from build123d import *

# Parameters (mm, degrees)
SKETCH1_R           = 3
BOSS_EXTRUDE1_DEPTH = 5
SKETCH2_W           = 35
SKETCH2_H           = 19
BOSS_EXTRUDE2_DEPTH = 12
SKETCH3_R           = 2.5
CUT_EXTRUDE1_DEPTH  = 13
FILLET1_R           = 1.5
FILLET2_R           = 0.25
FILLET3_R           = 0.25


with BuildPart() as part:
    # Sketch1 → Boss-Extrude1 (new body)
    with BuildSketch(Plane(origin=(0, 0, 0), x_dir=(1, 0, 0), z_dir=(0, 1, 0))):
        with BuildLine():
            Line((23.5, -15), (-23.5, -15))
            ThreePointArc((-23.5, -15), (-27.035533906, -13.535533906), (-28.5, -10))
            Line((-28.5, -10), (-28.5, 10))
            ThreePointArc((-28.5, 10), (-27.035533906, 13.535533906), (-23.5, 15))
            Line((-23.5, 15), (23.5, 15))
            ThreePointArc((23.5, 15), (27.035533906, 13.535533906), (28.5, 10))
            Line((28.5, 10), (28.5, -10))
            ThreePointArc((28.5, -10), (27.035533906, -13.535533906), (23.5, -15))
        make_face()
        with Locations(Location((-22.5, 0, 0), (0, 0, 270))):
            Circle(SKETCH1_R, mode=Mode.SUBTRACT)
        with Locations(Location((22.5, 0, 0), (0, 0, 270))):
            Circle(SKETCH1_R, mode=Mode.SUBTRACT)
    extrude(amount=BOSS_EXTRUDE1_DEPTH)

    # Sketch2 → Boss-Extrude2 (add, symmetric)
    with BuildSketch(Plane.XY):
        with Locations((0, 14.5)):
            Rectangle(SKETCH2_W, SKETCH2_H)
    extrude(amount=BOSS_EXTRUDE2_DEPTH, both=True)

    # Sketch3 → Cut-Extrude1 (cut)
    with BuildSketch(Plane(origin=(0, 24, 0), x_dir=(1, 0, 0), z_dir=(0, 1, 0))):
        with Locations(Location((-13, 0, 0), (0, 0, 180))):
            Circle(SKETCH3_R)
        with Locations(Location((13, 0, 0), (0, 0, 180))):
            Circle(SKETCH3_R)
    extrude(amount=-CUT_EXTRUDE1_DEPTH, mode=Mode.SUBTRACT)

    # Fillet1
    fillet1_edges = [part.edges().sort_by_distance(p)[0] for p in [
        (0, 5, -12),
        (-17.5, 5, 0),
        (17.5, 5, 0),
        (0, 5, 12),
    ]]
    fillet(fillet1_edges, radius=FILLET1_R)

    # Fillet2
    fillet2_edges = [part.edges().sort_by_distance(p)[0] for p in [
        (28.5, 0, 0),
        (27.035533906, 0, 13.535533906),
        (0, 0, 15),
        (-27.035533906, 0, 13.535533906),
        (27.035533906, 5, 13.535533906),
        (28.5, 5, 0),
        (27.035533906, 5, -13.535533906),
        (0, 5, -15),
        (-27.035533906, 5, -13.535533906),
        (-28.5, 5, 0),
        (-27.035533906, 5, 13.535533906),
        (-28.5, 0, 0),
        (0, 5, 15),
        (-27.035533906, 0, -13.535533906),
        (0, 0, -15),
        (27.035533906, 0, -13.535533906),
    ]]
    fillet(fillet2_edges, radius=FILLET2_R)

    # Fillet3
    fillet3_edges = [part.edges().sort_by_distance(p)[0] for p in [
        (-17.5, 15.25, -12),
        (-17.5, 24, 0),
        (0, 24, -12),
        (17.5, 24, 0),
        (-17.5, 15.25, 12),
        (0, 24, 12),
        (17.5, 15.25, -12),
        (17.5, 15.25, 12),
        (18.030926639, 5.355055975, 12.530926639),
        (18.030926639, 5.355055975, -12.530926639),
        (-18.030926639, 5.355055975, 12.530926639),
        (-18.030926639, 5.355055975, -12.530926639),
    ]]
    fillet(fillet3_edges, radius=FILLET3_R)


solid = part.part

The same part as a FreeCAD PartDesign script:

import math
import FreeCAD as App
import Part
import Sketcher
from FreeCAD import Vector


def edges_at(feature, points):
    """Names of the edges that pass closest to the given points."""
    edges = feature.Shape.Edges
    near = lambda p: min(range(len(edges)), key=lambda i: edges[i].distToShape(Part.Vertex(*p))[0])
    return sorted({f"Edge{near(p) + 1}" for p in points})

doc = App.newDocument("Part")
params = doc.addObject("Spreadsheet::Sheet", "Params")
for row, (alias, value) in enumerate([
    ("sketch1_diameter", "6 mm"),
    ("sketch1_radius", "5 mm"),
    ("sketch1_width", "47 mm"),
    ("sketch1_height", "20 mm"),
    ("pad1_length", "5 mm"),
    ("sketch2_width", "35 mm"),
    ("sketch2_height", "19 mm"),
    ("pad2_length", "24 mm"),
    ("sketch3_diameter", "5 mm"),
    ("pocket1_length", "13 mm"),
    ("fillet_radius", "1.5 mm"),
    ("fillet2_radius", "0.25 mm"),
    ("fillet3_radius", "0.25 mm"),
], start=1):
    params.set(f"A{row}", alias)
    params.set(f"B{row}", "=" + value)
    params.setAlias(f"B{row}", alias)

body = doc.addObject("PartDesign::Body", "Body")

# Sketch on XZ plane
sketch1 = doc.addObject("Sketcher::SketchObject", "Sketch")
body.addObject(sketch1)
sketch1.AttachmentSupport = (doc.XZ_Plane, [""])
sketch1.MapMode = "FlatFace"
sketch1.addGeometry(Part.LineSegment(Vector(-23.5, 15, 0), Vector(23.5, 15, 0)), False)
sketch1.addGeometry(Part.ArcOfCircle(Part.Circle(Vector(23.5, 10, 0), Vector(0, 0, 1), 5), math.radians(0), math.radians(90)), False)
sketch1.addGeometry(Part.LineSegment(Vector(28.5, 10, 0), Vector(28.5, -10, 0)), False)
sketch1.addGeometry(Part.ArcOfCircle(Part.Circle(Vector(23.5, -10, 0), Vector(0, 0, 1), 5), math.radians(-90), math.radians(0)), False)
sketch1.addGeometry(Part.LineSegment(Vector(23.5, -15, 0), Vector(-23.5, -15, 0)), False)
sketch1.addGeometry(Part.ArcOfCircle(Part.Circle(Vector(-23.5, -10, 0), Vector(0, 0, 1), 5), math.radians(180), math.radians(270)), False)
sketch1.addGeometry(Part.LineSegment(Vector(-28.5, -10, 0), Vector(-28.5, 10, 0)), False)
sketch1.addGeometry(Part.ArcOfCircle(Part.Circle(Vector(-23.5, 10, 0), Vector(0, 0, 1), 5), math.radians(90), math.radians(180)), False)
sketch1.addGeometry(Part.Circle(Vector(22.5, 0, 0), Vector(0, 0, 1), 3), False)
sketch1.addGeometry(Part.Circle(Vector(-22.5, 0, 0), Vector(0, 0, 1), 3), False)
sketch1.addConstraint(Sketcher.Constraint("Tangent", 0, 2, 1, 2))
sketch1.addConstraint(Sketcher.Constraint("Tangent", 1, 1, 2, 1))
sketch1.addConstraint(Sketcher.Constraint("Tangent", 2, 2, 3, 2))
sketch1.addConstraint(Sketcher.Constraint("Tangent", 3, 1, 4, 1))
sketch1.addConstraint(Sketcher.Constraint("Tangent", 4, 2, 5, 2))
sketch1.addConstraint(Sketcher.Constraint("Tangent", 5, 1, 6, 1))
sketch1.addConstraint(Sketcher.Constraint("Tangent", 6, 2, 7, 2))
sketch1.addConstraint(Sketcher.Constraint("Tangent", 7, 1, 0, 1))
sketch1.addConstraint(Sketcher.Constraint("Horizontal", 0))
sketch1.addConstraint(Sketcher.Constraint("Vertical", 2))
sketch1.addConstraint(Sketcher.Constraint("Horizontal", 4))
sketch1.addConstraint(Sketcher.Constraint("Vertical", 6))
sketch1.addConstraint(Sketcher.Constraint("Equal", 1, 3))
sketch1.addConstraint(Sketcher.Constraint("Equal", 3, 5))
sketch1.addConstraint(Sketcher.Constraint("Equal", 5, 7))
sketch1.addConstraint(Sketcher.Constraint("Equal", 8, 9))
sketch1.addConstraint(Sketcher.Constraint("Symmetric", 1, 3, 5, 3, -1, 1))
sketch1.addConstraint(Sketcher.Constraint("Symmetric", 8, 3, 9, 3, -1, 1))
sketch1.addConstraint(Sketcher.Constraint("PointOnObject", 8, 3, -1))
sketch1.addConstraint(Sketcher.Constraint("Diameter", 8, 6.0))
sketch1.addConstraint(Sketcher.Constraint("Radius", 1, 5.0))
sketch1.addConstraint(Sketcher.Constraint("DistanceX", 0, 1, 0, 2, 47.0))
sketch1.addConstraint(Sketcher.Constraint("DistanceY", 2, 2, 2, 1, 20.0))
sketch1.addConstraint(Sketcher.Constraint("DistanceX", 8, 3, 1, 3, 1.0))
sketch1.setExpression("Constraints[19]", "Params.sketch1_diameter")
sketch1.setExpression("Constraints[20]", "Params.sketch1_radius")
sketch1.setExpression("Constraints[21]", "Params.sketch1_width")
sketch1.setExpression("Constraints[22]", "Params.sketch1_height")
pad1 = doc.addObject("PartDesign::Pad", "Pad")
body.addObject(pad1)
pad1.Profile = sketch1
pad1.setExpression("Length", "Params.pad1_length")
pad1.Reversed = True

# Sketch on XY plane
sketch2 = doc.addObject("Sketcher::SketchObject", "Sketch001")
body.addObject(sketch2)
sketch2.AttachmentSupport = (doc.XY_Plane, [""])
sketch2.MapMode = "FlatFace"
sketch2.addGeometry(Part.LineSegment(Vector(-17.5, 24, 0), Vector(-17.5, 5, 0)), False)
sketch2.addGeometry(Part.LineSegment(Vector(-17.5, 5, 0), Vector(17.5, 5, 0)), False)
sketch2.addGeometry(Part.LineSegment(Vector(17.5, 5, 0), Vector(17.5, 24, 0)), False)
sketch2.addGeometry(Part.LineSegment(Vector(17.5, 24, 0), Vector(-17.5, 24, 0)), False)
sketch2.addConstraint(Sketcher.Constraint("Coincident", 0, 2, 1, 1))
sketch2.addConstraint(Sketcher.Constraint("Coincident", 1, 2, 2, 1))
sketch2.addConstraint(Sketcher.Constraint("Coincident", 2, 2, 3, 1))
sketch2.addConstraint(Sketcher.Constraint("Coincident", 3, 2, 0, 1))
sketch2.addConstraint(Sketcher.Constraint("Vertical", 0))
sketch2.addConstraint(Sketcher.Constraint("Horizontal", 1))
sketch2.addConstraint(Sketcher.Constraint("Vertical", 2))
sketch2.addConstraint(Sketcher.Constraint("Horizontal", 3))
sketch2.addConstraint(Sketcher.Constraint("DistanceX", 1, 1, 1, 2, 35.0))
sketch2.addConstraint(Sketcher.Constraint("DistanceY", 0, 2, 0, 1, 19.0))
sketch2.addConstraint(Sketcher.Constraint("DistanceY", -1, 1, 0, 2, 5.0))
sketch2.addConstraint(Sketcher.Constraint("DistanceX", 0, 2, -1, 1, 17.5))
sketch2.setExpression("Constraints[8]", "Params.sketch2_width")
sketch2.setExpression("Constraints[9]", "Params.sketch2_height")
pad2 = doc.addObject("PartDesign::Pad", "Pad001")
body.addObject(pad2)
pad2.Profile = sketch2
pad2.setExpression("Length", "Params.pad2_length")
pad2.Midplane = True

# Sketch on XZ plane
sketch3 = doc.addObject("Sketcher::SketchObject", "Sketch002")
body.addObject(sketch3)
sketch3.AttachmentSupport = (doc.XZ_Plane, [""])
sketch3.MapMode = "FlatFace"
sketch3.AttachmentOffset = App.Placement(Vector(0, 0, -24), App.Rotation())
sketch3.addGeometry(Part.Circle(Vector(-13, 0, 0), Vector(0, 0, 1), 2.5), False)
sketch3.addGeometry(Part.Circle(Vector(13, 0, 0), Vector(0, 0, 1), 2.5), False)
sketch3.addConstraint(Sketcher.Constraint("Equal", 0, 1))
sketch3.addConstraint(Sketcher.Constraint("Symmetric", 0, 3, 1, 3, -1, 1))
sketch3.addConstraint(Sketcher.Constraint("PointOnObject", 0, 3, -1))
sketch3.addConstraint(Sketcher.Constraint("Diameter", 0, 5.0))
sketch3.addConstraint(Sketcher.Constraint("DistanceX", 0, 3, -1, 1, 13.0))
sketch3.setExpression("Constraints[3]", "Params.sketch3_diameter")
pocket1 = doc.addObject("PartDesign::Pocket", "Pocket")
body.addObject(pocket1)
pocket1.Profile = sketch3
pocket1.setExpression("Length", "Params.pocket1_length")
pocket1.Reversed = True
doc.recompute()

fillet = doc.addObject("PartDesign::Fillet", "Fillet")
body.addObject(fillet)
fillet.Base = (pocket1, edges_at(pocket1, [
    (0, 5, -12),
    (-17.5, 5, 0),
    (17.5, 5, 0),
    (0, 5, 12),
]))
fillet.setExpression("Radius", "Params.fillet_radius")
doc.recompute()

fillet2 = doc.addObject("PartDesign::Fillet", "Fillet001")
body.addObject(fillet2)
fillet2.Base = (fillet, edges_at(fillet, [
    (28.5, 0, 0),
    (27.036, 0, 13.536),
    (0, 0, 15),
    (-27.036, 0, 13.536),
    (27.036, 5, 13.536),
    (28.5, 5, 0),
    (27.036, 5, -13.536),
    (0, 5, -15),
    (-27.036, 5, -13.536),
    (-28.5, 5, 0),
    (-27.036, 5, 13.536),
    (-28.5, 0, 0),
    (0, 5, 15),
    (-27.036, 0, -13.536),
    (0, 0, -15),
    (27.036, 0, -13.536),
]))
fillet2.setExpression("Radius", "Params.fillet2_radius")
doc.recompute()

fillet3 = doc.addObject("PartDesign::Fillet", "Fillet002")
body.addObject(fillet3)
fillet3.Base = (fillet2, edges_at(fillet2, [
    (-17.5, 15.25, -12),
    (-17.5, 24, 0),
    (0, 24, -12),
    (17.5, 24, 0),
    (-17.5, 15.25, 12),
    (0, 24, 12),
    (17.5, 15.25, -12),
    (17.5, 15.25, 12),
    (18.031, 5.355, 12.531),
    (18.031, 5.355, -12.531),
    (-18.031, 5.355, 12.531),
    (-18.031, 5.355, -12.531),
]))
fillet3.setExpression("Radius", "Params.fillet3_radius")

doc.recompute()
